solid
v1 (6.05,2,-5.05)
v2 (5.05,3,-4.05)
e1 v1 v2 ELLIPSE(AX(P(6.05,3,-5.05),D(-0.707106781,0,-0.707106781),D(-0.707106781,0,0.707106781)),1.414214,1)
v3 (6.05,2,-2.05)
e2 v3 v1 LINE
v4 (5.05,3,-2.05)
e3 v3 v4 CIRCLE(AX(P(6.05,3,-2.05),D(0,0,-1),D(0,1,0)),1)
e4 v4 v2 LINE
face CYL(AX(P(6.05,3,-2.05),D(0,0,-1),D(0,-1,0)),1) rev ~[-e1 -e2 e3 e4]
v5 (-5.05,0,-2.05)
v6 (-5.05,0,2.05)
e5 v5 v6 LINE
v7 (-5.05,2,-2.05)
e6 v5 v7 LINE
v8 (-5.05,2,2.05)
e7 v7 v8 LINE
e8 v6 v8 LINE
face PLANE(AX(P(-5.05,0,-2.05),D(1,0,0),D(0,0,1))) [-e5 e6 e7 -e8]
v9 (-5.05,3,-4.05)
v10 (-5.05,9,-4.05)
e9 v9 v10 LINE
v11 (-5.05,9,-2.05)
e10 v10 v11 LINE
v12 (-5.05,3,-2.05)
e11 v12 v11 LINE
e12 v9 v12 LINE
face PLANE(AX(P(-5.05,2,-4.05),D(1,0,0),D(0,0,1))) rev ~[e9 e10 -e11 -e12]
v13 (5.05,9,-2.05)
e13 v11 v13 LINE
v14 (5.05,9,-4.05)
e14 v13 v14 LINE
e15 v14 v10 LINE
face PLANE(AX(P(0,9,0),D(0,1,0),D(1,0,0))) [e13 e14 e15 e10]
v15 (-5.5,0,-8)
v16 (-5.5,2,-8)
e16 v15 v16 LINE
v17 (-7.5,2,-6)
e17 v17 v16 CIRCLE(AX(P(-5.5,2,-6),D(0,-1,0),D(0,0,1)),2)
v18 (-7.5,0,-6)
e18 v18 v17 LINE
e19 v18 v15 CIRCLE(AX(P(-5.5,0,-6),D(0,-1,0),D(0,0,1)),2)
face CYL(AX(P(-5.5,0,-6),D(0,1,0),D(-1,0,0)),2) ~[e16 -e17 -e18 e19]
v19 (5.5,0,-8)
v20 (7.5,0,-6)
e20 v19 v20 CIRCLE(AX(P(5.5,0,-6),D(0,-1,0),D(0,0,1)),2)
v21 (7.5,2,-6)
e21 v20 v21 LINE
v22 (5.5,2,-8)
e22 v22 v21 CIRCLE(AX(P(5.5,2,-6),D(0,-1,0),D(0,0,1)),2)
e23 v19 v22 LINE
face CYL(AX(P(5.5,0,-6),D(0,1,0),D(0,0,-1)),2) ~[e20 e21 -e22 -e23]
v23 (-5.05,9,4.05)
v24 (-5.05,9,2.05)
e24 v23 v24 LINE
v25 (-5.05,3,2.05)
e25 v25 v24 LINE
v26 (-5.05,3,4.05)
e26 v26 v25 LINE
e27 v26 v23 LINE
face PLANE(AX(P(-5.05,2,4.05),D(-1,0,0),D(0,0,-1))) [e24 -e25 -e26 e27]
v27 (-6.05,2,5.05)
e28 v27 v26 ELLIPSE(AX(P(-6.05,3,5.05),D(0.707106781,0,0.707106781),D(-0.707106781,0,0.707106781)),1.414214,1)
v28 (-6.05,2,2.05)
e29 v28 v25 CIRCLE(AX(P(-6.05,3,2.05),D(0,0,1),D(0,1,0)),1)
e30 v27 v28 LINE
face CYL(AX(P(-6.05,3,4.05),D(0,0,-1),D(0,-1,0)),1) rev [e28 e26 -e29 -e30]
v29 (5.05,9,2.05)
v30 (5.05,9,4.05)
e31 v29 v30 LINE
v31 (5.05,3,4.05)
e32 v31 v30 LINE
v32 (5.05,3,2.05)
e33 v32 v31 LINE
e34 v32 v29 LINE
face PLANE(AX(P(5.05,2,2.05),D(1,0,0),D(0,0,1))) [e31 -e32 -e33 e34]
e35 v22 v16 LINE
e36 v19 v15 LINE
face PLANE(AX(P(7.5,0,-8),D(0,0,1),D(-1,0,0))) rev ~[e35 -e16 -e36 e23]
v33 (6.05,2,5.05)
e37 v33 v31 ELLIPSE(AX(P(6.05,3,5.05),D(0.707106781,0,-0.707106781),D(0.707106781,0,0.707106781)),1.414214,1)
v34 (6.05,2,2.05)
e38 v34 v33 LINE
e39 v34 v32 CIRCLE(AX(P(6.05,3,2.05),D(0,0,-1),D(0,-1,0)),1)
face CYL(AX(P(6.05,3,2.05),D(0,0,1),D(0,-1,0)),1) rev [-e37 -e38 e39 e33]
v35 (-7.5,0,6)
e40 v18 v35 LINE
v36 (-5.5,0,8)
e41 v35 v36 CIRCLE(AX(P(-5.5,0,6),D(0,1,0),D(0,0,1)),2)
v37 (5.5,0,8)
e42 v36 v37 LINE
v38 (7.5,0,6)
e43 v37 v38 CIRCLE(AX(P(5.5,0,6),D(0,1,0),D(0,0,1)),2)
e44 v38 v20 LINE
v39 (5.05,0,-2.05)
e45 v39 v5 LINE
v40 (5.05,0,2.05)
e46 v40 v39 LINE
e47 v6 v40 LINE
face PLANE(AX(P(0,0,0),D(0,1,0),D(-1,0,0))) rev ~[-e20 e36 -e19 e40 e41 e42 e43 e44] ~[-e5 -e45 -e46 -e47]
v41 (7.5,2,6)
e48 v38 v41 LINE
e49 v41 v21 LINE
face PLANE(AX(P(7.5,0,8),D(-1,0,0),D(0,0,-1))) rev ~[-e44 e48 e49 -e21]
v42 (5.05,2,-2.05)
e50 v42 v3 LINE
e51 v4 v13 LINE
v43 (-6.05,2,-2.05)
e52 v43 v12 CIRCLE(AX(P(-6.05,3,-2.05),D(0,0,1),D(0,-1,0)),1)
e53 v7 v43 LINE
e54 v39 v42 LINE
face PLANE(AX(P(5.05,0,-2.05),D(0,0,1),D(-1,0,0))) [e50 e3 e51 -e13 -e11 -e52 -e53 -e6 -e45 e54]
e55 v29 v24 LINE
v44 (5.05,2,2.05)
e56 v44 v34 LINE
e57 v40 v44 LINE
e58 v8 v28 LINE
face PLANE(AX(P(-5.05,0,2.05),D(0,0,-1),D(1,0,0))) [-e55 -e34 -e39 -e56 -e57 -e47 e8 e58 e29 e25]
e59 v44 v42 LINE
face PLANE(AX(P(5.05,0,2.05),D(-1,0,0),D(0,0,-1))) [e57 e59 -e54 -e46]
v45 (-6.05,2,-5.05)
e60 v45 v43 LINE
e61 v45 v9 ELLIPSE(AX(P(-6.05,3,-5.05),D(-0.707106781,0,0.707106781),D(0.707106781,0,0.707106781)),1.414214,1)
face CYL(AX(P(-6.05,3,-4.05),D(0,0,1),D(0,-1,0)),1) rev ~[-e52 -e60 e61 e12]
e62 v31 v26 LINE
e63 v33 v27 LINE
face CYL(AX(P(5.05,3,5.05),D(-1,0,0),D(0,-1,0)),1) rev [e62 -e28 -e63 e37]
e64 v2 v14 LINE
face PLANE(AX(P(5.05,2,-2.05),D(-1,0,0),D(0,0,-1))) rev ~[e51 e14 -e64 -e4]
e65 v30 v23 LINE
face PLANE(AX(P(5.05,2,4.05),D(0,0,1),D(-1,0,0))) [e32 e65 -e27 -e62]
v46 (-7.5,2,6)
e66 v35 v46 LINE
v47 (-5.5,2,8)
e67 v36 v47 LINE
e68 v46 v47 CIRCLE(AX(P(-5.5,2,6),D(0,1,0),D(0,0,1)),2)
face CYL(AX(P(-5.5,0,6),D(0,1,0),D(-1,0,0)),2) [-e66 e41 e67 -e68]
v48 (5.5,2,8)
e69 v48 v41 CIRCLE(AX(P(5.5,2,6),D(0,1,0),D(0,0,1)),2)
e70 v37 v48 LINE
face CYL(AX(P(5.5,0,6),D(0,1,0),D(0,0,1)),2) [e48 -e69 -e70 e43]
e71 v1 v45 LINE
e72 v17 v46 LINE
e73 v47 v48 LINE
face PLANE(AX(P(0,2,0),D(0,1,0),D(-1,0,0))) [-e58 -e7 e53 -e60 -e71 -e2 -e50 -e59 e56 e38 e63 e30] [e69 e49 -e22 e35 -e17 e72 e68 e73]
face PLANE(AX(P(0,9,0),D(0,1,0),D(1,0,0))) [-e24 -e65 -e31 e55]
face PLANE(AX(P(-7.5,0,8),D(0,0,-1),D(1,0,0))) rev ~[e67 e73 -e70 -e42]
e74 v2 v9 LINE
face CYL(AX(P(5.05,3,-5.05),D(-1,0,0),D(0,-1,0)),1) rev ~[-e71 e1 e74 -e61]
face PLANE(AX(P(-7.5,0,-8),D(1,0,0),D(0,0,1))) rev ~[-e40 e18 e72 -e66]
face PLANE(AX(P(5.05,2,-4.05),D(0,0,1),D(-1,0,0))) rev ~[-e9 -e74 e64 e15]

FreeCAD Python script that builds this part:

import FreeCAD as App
import Part
import Sketcher

V = App.Vector


def edges_at(feature, points):
    """Names of the edges that pass closest to the given points."""
    edges = feature.Shape.Edges
    near = lambda p: min(range(len(edges)), key=lambda i: edges[i].distToShape(Part.Vertex(*p))[0])
    return sorted({f"Edge{near(p) + 1}" for p in points})

doc = App.newDocument("Part")
params = doc.addObject("Spreadsheet::Sheet", "Params")
for row, (alias, value) in enumerate([
    ("sketch1_width", "15 mm"),
    ("sketch1_height", "16 mm"),
    ("sketch1_width2", "10.1 mm"),
    ("sketch1_height2", "4.1 mm"),
    ("pad1_length", "2 mm"),
    ("sketch2_height", "2 mm"),
    ("sketch2_width", "10.1 mm"),
    ("pad2_length", "7 mm"),
    ("fillet_radius", "1 mm"),
    ("fillet2_radius", "2 mm"),
], start=1):
    params.set(f"A{row}", alias)
    params.set(f"B{row}", "=" + value)
    params.setAlias(f"B{row}", alias)

body = doc.addObject("PartDesign::Body", "Body")

# Sketch on XZ plane
sketch1 = doc.addObject("Sketcher::SketchObject", "Sketch")
body.addObject(sketch1)
sketch1.AttachmentSupport = (doc.XZ_Plane, [""])
sketch1.MapMode = "FlatFace"
sketch1.addGeometry([
    Part.LineSegment(V(-7.5, -8, 0), V(-7.5, 8, 0)),  # 0
    Part.LineSegment(V(-7.5, 8, 0), V(7.5, 8, 0)),  # 1
    Part.LineSegment(V(7.5, 8, 0), V(7.5, -8, 0)),  # 2
    Part.LineSegment(V(7.5, -8, 0), V(-7.5, -8, 0)),  # 3
    Part.LineSegment(V(5.05, 2.05, 0), V(-5.05, 2.05, 0)),  # 4
    Part.LineSegment(V(-5.05, 2.05, 0), V(-5.05, -2.05, 0)),  # 5
    Part.LineSegment(V(-5.05, -2.05, 0), V(5.05, -2.05, 0)),  # 6
    Part.LineSegment(V(5.05, -2.05, 0), V(5.05, 2.05, 0)),  # 7
], False)
sketch1.addConstraint([
    Sketcher.Constraint("Coincident", 0, 2, 1, 1),
    Sketcher.Constraint("Coincident", 1, 2, 2, 1),
    Sketcher.Constraint("Coincident", 2, 2, 3, 1),
    Sketcher.Constraint("Coincident", 3, 2, 0, 1),
    Sketcher.Constraint("Coincident", 4, 2, 5, 1),
    Sketcher.Constraint("Coincident", 5, 2, 6, 1),
    Sketcher.Constraint("Coincident", 6, 2, 7, 1),
    Sketcher.Constraint("Coincident", 7, 2, 4, 1),
    Sketcher.Constraint("Vertical", 0),
    Sketcher.Constraint("Horizontal", 1),
    Sketcher.Constraint("Vertical", 2),
    Sketcher.Constraint("Horizontal", 3),
    Sketcher.Constraint("Horizontal", 4),
    Sketcher.Constraint("Vertical", 5),
    Sketcher.Constraint("Horizontal", 6),
    Sketcher.Constraint("Vertical", 7),
    Sketcher.Constraint("Symmetric", 0, 2, 2, 2, -1, 1),
    Sketcher.Constraint("Symmetric", 4, 2, 6, 2, -1, 1),
    Sketcher.Constraint("DistanceX", 1, 1, 1, 2, 15.0),
    Sketcher.Constraint("DistanceY", 0, 1, 0, 2, 16.0),
    Sketcher.Constraint("DistanceX", 4, 2, 4, 1, 10.1),
    Sketcher.Constraint("DistanceY", 5, 2, 5, 1, 4.1),
])
sketch1.setExpression("Constraints[18]", "Params.sketch1_width")
sketch1.setExpression("Constraints[19]", "Params.sketch1_height")
sketch1.setExpression("Constraints[20]", "Params.sketch1_width2")
sketch1.setExpression("Constraints[21]", "Params.sketch1_height2")
pad1 = doc.addObject("PartDesign::Pad", "Pad")
body.addObject(pad1)
pad1.Profile = sketch1
pad1.setExpression("Length", "Params.pad1_length")
pad1.Reversed = True

# Sketch on XZ plane
sketch2 = doc.addObject("Sketcher::SketchObject", "Sketch001")
body.addObject(sketch2)
sketch2.AttachmentSupport = (doc.XZ_Plane, [""])
sketch2.MapMode = "FlatFace"
sketch2.AttachmentOffset = App.Placement(V(0, 0, -2), App.Rotation())
sketch2.addGeometry([
    Part.LineSegment(V(-5.05, -4.05, 0), V(-5.05, -2.05, 0)),  # 0
    Part.LineSegment(V(-5.05, -2.05, 0), V(5.05, -2.05, 0)),  # 1
    Part.LineSegment(V(5.05, -2.05, 0), V(5.05, -4.05, 0)),  # 2
    Part.LineSegment(V(5.05, -4.05, 0), V(-5.05, -4.05, 0)),  # 3
    Part.LineSegment(V(5.05, 4.05, 0), V(5.05, 2.05, 0)),  # 4
    Part.LineSegment(V(5.05, 2.05, 0), V(-5.05, 2.05, 0)),  # 5
    Part.LineSegment(V(-5.05, 2.05, 0), V(-5.05, 4.05, 0)),  # 6
    Part.LineSegment(V(-5.05, 4.05, 0), V(5.05, 4.05, 0)),  # 7
], False)
sketch2.addConstraint([
    Sketcher.Constraint("Coincident", 0, 2, 1, 1),
    Sketcher.Constraint("Coincident", 1, 2, 2, 1),
    Sketcher.Constraint("Coincident", 2, 2, 3, 1),
    Sketcher.Constraint("Coincident", 3, 2, 0, 1),
    Sketcher.Constraint("Coincident", 4, 2, 5, 1),
    Sketcher.Constraint("Coincident", 5, 2, 6, 1),
    Sketcher.Constraint("Coincident", 6, 2, 7, 1),
    Sketcher.Constraint("Coincident", 7, 2, 4, 1),
    Sketcher.Constraint("Vertical", 0),
    Sketcher.Constraint("Horizontal", 1),
    Sketcher.Constraint("Vertical", 2),
    Sketcher.Constraint("Horizontal", 3),
    Sketcher.Constraint("Vertical", 4),
    Sketcher.Constraint("Horizontal", 5),
    Sketcher.Constraint("Vertical", 6),
    Sketcher.Constraint("Horizontal", 7),
    Sketcher.Constraint("Symmetric", 0, 2, 4, 2, -1, 1),
    Sketcher.Constraint("Symmetric", 2, 2, 6, 2, -1, 1),
    Sketcher.Constraint("Vertical", 2, 2, 4, 2),
    Sketcher.Constraint("DistanceY", 0, 1, 0, 2, 2.0),
    Sketcher.Constraint("DistanceX", 1, 1, 1, 2, 10.1),
    Sketcher.Constraint("DistanceY", 1, 2, 4, 2, 4.1),
])
sketch2.setExpression("Constraints[19]", "Params.sketch2_height")
sketch2.setExpression("Constraints[20]", "Params.sketch2_width")
pad2 = doc.addObject("PartDesign::Pad", "Pad001")
body.addObject(pad2)
pad2.Profile = sketch2
pad2.setExpression("Length", "Params.pad2_length")
pad2.Reversed = True
doc.recompute()

fillet = doc.addObject("PartDesign::Fillet", "Fillet")
body.addObject(fillet)
fillet.Base = (pad2, edges_at(pad2, [
    (5.05, 2, 3.05),
    (0, 2, 4.05),
    (-5.05, 2, 3.05),
    (-5.05, 2, -3.05),
    (0, 2, -4.05),
    (5.05, 2, -3.05),
]))
fillet.setExpression("Radius", "Params.fillet_radius")
doc.recompute()

fillet2 = doc.addObject("PartDesign::Fillet", "Fillet001")
body.addObject(fillet2)
fillet2.Base = (fillet, edges_at(fillet, [
    (7.5, 1, -8),
    (-7.5, 1, -8),
    (-7.5, 1, 8),
    (7.5, 1, 8),
]))
fillet2.setExpression("Radius", "Params.fillet2_radius")

doc.recompute()
